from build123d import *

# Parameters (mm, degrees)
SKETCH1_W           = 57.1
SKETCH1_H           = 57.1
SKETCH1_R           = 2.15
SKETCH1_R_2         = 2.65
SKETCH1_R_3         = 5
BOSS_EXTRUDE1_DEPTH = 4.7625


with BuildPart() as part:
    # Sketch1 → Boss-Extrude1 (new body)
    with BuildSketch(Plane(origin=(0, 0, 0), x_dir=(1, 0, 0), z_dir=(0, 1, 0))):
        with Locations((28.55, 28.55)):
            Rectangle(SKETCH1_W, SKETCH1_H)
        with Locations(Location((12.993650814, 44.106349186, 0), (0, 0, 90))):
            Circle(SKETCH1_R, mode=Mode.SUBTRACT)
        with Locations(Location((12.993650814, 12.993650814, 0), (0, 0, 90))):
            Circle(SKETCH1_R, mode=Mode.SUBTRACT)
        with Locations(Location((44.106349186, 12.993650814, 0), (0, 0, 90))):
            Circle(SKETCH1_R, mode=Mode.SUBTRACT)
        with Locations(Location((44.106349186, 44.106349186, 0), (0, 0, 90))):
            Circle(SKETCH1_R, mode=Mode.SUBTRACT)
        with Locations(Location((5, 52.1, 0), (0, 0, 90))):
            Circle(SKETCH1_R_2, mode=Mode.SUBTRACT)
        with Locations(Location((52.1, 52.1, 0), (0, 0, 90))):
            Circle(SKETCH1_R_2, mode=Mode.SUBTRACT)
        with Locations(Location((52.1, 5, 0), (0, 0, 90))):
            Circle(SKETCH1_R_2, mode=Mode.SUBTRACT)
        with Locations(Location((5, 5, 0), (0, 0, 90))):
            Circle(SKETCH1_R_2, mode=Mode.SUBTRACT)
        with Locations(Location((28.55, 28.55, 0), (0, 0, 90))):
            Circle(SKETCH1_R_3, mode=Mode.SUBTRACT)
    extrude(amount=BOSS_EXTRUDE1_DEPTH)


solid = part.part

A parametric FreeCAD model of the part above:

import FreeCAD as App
import Part
import Sketcher
from FreeCAD import Vector

doc = App.newDocument("Part")
body = doc.addObject("PartDesign::Body", "Body")

# Sketch on XZ plane
sketch1 = body.newObject("Sketcher::SketchObject", "Sketch")
sketch1.AttachmentSupport = (doc.getObject("XZ_Plane"), [""])
sketch1.MapMode = "FlatFace"
sketch1.addGeometry([
    Part.LineSegment(Vector(0, -57.1, 0), Vector(0, 0, 0)),  # 0
    Part.LineSegment(Vector(0, 0, 0), Vector(57.1, 0, 0)),  # 1
    Part.LineSegment(Vector(57.1, 0, 0), Vector(57.1, -57.1, 0)),  # 2
    Part.LineSegment(Vector(57.1, -57.1, 0), Vector(0, -57.1, 0)),  # 3
    Part.Circle(Vector(5, -5, 0), Vector(0, 0, 1), 2.65),  # 4
    Part.Circle(Vector(12.993651, -12.993651, 0), Vector(0, 0, 1), 2.15),  # 5
    Part.Circle(Vector(52.1, -5, 0), Vector(0, 0, 1), 2.65),  # 6
    Part.Circle(Vector(44.106349, -12.993651, 0), Vector(0, 0, 1), 2.15),  # 7
    Part.Circle(Vector(12.993651, -44.106349, 0), Vector(0, 0, 1), 2.15),  # 8
    Part.Circle(Vector(5, -52.1, 0), Vector(0, 0, 1), 2.65),  # 9
    Part.Circle(Vector(28.55, -28.55, 0), Vector(0, 0, 1), 5),  # 10
    Part.Circle(Vector(44.106349, -44.106349, 0), Vector(0, 0, 1), 2.15),  # 11
    Part.Circle(Vector(52.1, -52.1, 0), Vector(0, 0, 1), 2.65),  # 12
], False)
sketch1.addConstraint([
    Sketcher.Constraint("Coincident", 0, 2, 1, 1),
    Sketcher.Constraint("Coincident", 1, 2, 2, 1),
    Sketcher.Constraint("Coincident", 2, 2, 3, 1),
    Sketcher.Constraint("Coincident", 3, 2, 0, 1),
    Sketcher.Constraint("Vertical", 0),
    Sketcher.Constraint("Horizontal", 1),
    Sketcher.Constraint("Vertical", 2),
    Sketcher.Constraint("Horizontal", 3),
    Sketcher.Constraint("Coincident", 0, 2, -1, 1),
    Sketcher.Constraint("Equal", 4, 6),
    Sketcher.Constraint("Equal", 5, 7),
    Sketcher.Constraint("Equal", 7, 8),
    Sketcher.Constraint("Equal", 6, 9),
    Sketcher.Constraint("Equal", 8, 11),
    Sketcher.Constraint("Equal", 9, 12),
    Sketcher.Constraint("Horizontal", 4, 3, 6, 3),
    Sketcher.Constraint("Horizontal", 5, 3, 7, 3),
    Sketcher.Constraint("Horizontal", 8, 3, 11, 3),
    Sketcher.Constraint("Horizontal", 9, 3, 12, 3),
    Sketcher.Constraint("Vertical", 5, 3, 8, 3),
    Sketcher.Constraint("Vertical", 4, 3, 9, 3),
    Sketcher.Constraint("Vertical", 7, 3, 11, 3),
    Sketcher.Constraint("Vertical", 6, 3, 12, 3),
    Sketcher.Constraint("Equal", 3, 0),
    Sketcher.Constraint("Diameter", 10, 10.0),
    Sketcher.Constraint("Diameter", 4, 5.3),
    Sketcher.Constraint("Diameter", 5, 4.3),
    Sketcher.Constraint("DistanceX", 1, 1, 1, 2, 57.1),
    Sketcher.Constraint("DistanceX", -1, 1, 4, 3, 5.0),
    Sketcher.Constraint("DistanceY", 4, 3, -1, 1, 5.0),
    Sketcher.Constraint("DistanceX", 6, 3, 1, 2, 5.0),
    Sketcher.Constraint("DistanceY", 2, 2, 12, 3, 5.0),
    Sketcher.Constraint("DistanceX", -1, 1, 10, 3, 28.55),
    Sketcher.Constraint("DistanceY", 10, 3, -1, 1, 28.55),
    Sketcher.Constraint("DistanceX", 5, 3, 7, 3, 31.112698),
    Sketcher.Constraint("DistanceY", 8, 3, 5, 3, 31.112698),
    Sketcher.Constraint("DistanceX", -1, 1, 5, 3, 12.993651),
    Sketcher.Constraint("DistanceY", 5, 3, -1, 1, 12.993651),
])
pad1 = body.newObject("PartDesign::Pad", "Pad")
pad1.Profile = sketch1
pad1.Length = 4.7625
pad1.Reversed = True

doc.recompute()
